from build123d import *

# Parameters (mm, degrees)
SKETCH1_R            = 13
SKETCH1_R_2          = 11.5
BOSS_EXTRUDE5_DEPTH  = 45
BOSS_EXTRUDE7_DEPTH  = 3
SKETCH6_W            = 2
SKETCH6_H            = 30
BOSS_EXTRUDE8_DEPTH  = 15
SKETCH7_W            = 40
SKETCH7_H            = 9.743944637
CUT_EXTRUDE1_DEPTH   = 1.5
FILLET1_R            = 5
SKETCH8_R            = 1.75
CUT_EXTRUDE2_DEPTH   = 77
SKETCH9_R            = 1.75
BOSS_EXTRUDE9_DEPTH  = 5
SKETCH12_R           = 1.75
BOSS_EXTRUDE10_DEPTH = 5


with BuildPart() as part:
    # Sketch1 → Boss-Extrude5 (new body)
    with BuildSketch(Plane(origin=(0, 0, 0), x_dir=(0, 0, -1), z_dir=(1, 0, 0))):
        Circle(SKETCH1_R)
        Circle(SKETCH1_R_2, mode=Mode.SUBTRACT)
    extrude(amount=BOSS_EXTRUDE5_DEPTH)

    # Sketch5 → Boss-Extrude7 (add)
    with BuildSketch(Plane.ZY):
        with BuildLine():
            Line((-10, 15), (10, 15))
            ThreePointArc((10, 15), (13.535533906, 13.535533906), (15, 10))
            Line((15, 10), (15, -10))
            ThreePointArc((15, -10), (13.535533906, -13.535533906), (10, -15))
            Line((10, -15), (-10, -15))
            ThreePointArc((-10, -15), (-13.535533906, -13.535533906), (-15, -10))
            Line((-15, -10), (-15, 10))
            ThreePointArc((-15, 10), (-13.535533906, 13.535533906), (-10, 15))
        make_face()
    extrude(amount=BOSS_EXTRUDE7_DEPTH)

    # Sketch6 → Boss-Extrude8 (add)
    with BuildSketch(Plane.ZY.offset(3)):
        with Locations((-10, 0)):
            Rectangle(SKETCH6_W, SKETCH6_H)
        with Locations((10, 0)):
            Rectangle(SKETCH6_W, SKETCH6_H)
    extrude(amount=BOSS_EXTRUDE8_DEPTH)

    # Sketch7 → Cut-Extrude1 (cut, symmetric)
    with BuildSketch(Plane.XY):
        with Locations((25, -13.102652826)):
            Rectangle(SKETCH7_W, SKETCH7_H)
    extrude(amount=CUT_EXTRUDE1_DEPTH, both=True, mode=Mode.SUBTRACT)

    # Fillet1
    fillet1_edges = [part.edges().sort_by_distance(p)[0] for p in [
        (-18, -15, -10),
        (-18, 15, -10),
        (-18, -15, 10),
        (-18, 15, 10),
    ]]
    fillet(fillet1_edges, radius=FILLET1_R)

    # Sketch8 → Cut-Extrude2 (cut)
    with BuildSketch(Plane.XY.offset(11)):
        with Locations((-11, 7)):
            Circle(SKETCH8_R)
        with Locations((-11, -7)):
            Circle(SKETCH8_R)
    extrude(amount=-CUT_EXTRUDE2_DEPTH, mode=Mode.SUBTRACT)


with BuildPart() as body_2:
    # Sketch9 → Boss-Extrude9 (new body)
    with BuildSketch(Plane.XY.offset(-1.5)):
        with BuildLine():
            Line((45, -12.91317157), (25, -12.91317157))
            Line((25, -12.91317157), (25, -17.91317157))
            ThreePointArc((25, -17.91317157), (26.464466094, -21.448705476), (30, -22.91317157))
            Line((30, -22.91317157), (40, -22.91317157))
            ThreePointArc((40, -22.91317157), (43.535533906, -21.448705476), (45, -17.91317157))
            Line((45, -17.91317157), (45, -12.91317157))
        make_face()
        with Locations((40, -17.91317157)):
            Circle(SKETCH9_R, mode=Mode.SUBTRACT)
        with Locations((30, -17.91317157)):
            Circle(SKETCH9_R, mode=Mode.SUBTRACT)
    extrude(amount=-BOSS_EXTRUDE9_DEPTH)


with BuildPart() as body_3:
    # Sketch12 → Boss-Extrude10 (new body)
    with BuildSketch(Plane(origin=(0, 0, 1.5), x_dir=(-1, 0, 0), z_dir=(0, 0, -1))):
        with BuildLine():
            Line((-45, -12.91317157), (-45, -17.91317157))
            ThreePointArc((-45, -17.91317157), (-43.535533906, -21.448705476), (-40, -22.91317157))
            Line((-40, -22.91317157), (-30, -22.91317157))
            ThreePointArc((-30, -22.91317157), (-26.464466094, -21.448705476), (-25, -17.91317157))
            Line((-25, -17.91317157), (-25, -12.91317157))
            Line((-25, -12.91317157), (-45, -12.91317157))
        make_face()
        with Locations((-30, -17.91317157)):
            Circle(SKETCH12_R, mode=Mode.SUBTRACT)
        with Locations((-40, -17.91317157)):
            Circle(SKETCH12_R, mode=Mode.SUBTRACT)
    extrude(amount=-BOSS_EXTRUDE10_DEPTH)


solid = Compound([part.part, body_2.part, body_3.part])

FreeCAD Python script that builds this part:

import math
import FreeCAD as App
import Part
import Sketcher
from FreeCAD import Vector


def edges_at(feature, points):
    """Names of the edges that pass closest to the given points."""
    edges = feature.Shape.Edges
    near = lambda p: min(range(len(edges)), key=lambda i: edges[i].distToShape(Part.Vertex(*p))[0])
    return sorted({f"Edge{near(p) + 1}" for p in points})


def add_polygon(sketch, points):
    """Adds a closed chain of lines whose ends are joined by coincident constraints."""
    first, n = sketch.GeometryCount, len(points)
    for a, b in zip(points, points[1:] + points[:1]):
        sketch.addGeometry(Part.LineSegment(App.Vector(*a, 0), App.Vector(*b, 0)), False)
    for i in range(n):
        sketch.addConstraint(Sketcher.Constraint("Coincident", first + i, 2, first + (i + 1) % n, 1))

doc = App.newDocument("Part")
params = doc.addObject("Spreadsheet::Sheet", "Params")
for row, (alias, value) in enumerate([
    ("sketch1_diameter", "26 mm"),
    ("sketch1_diameter2", "23 mm"),
    ("pad1_length", "45 mm"),
    ("sketch2_radius", "5 mm"),
    ("sketch2_width", "20 mm"),
    ("pad2_length", "3 mm"),
    ("sketch3_width", "30 mm"),
    ("sketch3_height", "2 mm"),
    ("pad3_length", "15 mm"),
    ("sketch4_width", "40 mm"),
    ("pocket1_length", "3 mm"),
    ("fillet_radius", "5 mm"),
    ("sketch5_diameter", "3.5 mm"),
    ("pocket2_length", "77 mm"),
    ("sketch6_radius", "5 mm"),
    ("sketch6_diameter", "3.5 mm"),
    ("sketch6_width", "20 mm"),
    ("sketch6_height", "5 mm"),
    ("pad4_length", "5 mm"),
    ("sketch7_radius", "5 mm"),
    ("sketch7_diameter", "3.5 mm"),
    ("sketch7_width", "10 mm"),
    ("sketch7_height", "5 mm"),
    ("pad5_length", "5 mm"),
], start=1):
    params.set(f"A{row}", alias)
    params.set(f"B{row}", "=" + value)
    params.setAlias(f"B{row}", alias)

body = doc.addObject("PartDesign::Body", "Body")

sketch1 = body.newObject("Sketcher::SketchObject", "Sketch")
sketch1.AttachmentSupport = (doc.getObject("YZ_Plane"), [""])
sketch1.MapMode = "FlatFace"
sketch1.addGeometry([
    Part.Circle(Vector(0, 0, 0), Vector(0, 0, 1), 13),
    Part.Circle(Vector(0, 0, 0), Vector(0, 0, 1), 12),
], False)
sketch1.addConstraint([
    Sketcher.Constraint("Coincident", 0, 3, -1, 1),
    Sketcher.Constraint("Coincident", 1, 3, -1, 1),
    Sketcher.Constraint("Diameter", 0, 26.0),
    Sketcher.Constraint("Diameter", 1, 23.0),
])
sketch1.setExpression("Constraints[2]", "Params.sketch1_diameter")
sketch1.setExpression("Constraints[3]", "Params.sketch1_diameter2")
pad1 = body.newObject("PartDesign::Pad", "Pad")
pad1.Profile = sketch1
pad1.setExpression("Length", "Params.pad1_length")

sketch2 = body.newObject("Sketcher::SketchObject", "Sketch001")
sketch2.AttachmentSupport = (doc.getObject("YZ_Plane"), [""])
sketch2.MapMode = "FlatFace"
sketch2.addGeometry([
    Part.LineSegment(Vector(15, 10, 0), Vector(15, -10, 0)),
    Part.ArcOfCircle(Part.Circle(Vector(10, -10, 0), Vector(0, 0, 1), 5), math.radians(-90), math.radians(0)),
    Part.LineSegment(Vector(10, -15, 0), Vector(-10, -15, 0)),
    Part.ArcOfCircle(Part.Circle(Vector(-10, -10, 0), Vector(0, 0, 1), 5), math.radians(180), math.radians(270)),
    Part.LineSegment(Vector(-15, -10, 0), Vector(-15, 10, 0)),
    Part.ArcOfCircle(Part.Circle(Vector(-10, 10, 0), Vector(0, 0, 1), 5), math.radians(90), math.radians(180)),
    Part.LineSegment(Vector(-10, 15, 0), Vector(10, 15, 0)),
    Part.ArcOfCircle(Part.Circle(Vector(10, 10, 0), Vector(0, 0, 1), 5), math.radians(0), math.radians(90)),
], False)
sketch2.addConstraint([
    Sketcher.Constraint("Tangent", 0, 2, 1, 2),
    Sketcher.Constraint("Tangent", 1, 1, 2, 1),
    Sketcher.Constraint("Tangent", 2, 2, 3, 2),
    Sketcher.Constraint("Tangent", 3, 1, 4, 1),
    Sketcher.Constraint("Tangent", 4, 2, 5, 2),
    Sketcher.Constraint("Tangent", 5, 1, 6, 1),
    Sketcher.Constraint("Tangent", 6, 2, 7, 2),
    Sketcher.Constraint("Tangent", 7, 1, 0, 1),
    Sketcher.Constraint("Vertical", 0),
    Sketcher.Constraint("Horizontal", 2),
    Sketcher.Constraint("Vertical", 4),
    Sketcher.Constraint("Horizontal", 6),
    Sketcher.Constraint("Equal", 1, 3),
    Sketcher.Constraint("Equal", 3, 5),
    Sketcher.Constraint("Equal", 5, 7),
    Sketcher.Constraint("Symmetric", 1, 3, 5, 3, -1, 1),
    Sketcher.Constraint("Equal", 6, 0),
    Sketcher.Constraint("Radius", 1, 5.0),
    Sketcher.Constraint("DistanceX", 2, 2, 2, 1, 20.0),
])
sketch2.setExpression("Constraints[17]", "Params.sketch2_radius")
sketch2.setExpression("Constraints[18]", "Params.sketch2_width")
pad2 = body.newObject("PartDesign::Pad", "Pad001")
pad2.Profile = sketch2
pad2.setExpression("Length", "Params.pad2_length")
pad2.Reversed = True

sketch3 = body.newObject("Sketcher::SketchObject", "Sketch002")
sketch3.AttachmentSupport = (doc.getObject("YZ_Plane"), [""])
sketch3.MapMode = "FlatFace"
sketch3.AttachmentOffset = App.Placement(Vector(0, 0, -3), App.Rotation())
add_polygon(sketch3, [(15, -11), (-15, -11), (-15, -9), (15, -9)])
add_polygon(sketch3, [(15, 9), (-15, 9), (-15, 11), (15, 11)])
sketch3.addConstraint([
    Sketcher.Constraint("Horizontal", 0),
    Sketcher.Constraint("Vertical", 1),
    Sketcher.Constraint("Horizontal", 2),
    Sketcher.Constraint("Vertical", 3),
    Sketcher.Constraint("Horizontal", 4),
    Sketcher.Constraint("Vertical", 5),
    Sketcher.Constraint("Horizontal", 6),
    Sketcher.Constraint("Vertical", 7),
    Sketcher.Constraint("Symmetric", 2, 2, 4, 2, -1, 1),
    Sketcher.Constraint("Symmetric", 0, 2, 6, 2, -1, 1),
    Sketcher.Constraint("Vertical", 1, 2, 4, 2),
    Sketcher.Constraint("DistanceX", 0, 2, 0, 1, 30.0),
    Sketcher.Constraint("DistanceY", 1, 1, 1, 2, 2.0),
    Sketcher.Constraint("DistanceY", 0, 2, -1, 1, 11.0),
])
sketch3.setExpression("Constraints[19]", "Params.sketch3_width")
sketch3.setExpression("Constraints[20]", "Params.sketch3_height")
pad3 = body.newObject("PartDesign::Pad", "Pad002")
pad3.Profile = sketch3
pad3.setExpression("Length", "Params.pad3_length")
pad3.Reversed = True

sketch4 = body.newObject("Sketcher::SketchObject", "Sketch003")
sketch4.AttachmentSupport = (doc.getObject("XY_Plane"), [""])
sketch4.MapMode = "FlatFace"
add_polygon(sketch4, [(5, -8), (5, -18), (45, -18), (45, -8)])
sketch4.addConstraint([
    Sketcher.Constraint("Vertical", 0),
    Sketcher.Constraint("Horizontal", 1),
    Sketcher.Constraint("Vertical", 2),
    Sketcher.Constraint("Horizontal", 3),
    Sketcher.Constraint("DistanceX", 1, 1, 1, 2, 40.0),
    Sketcher.Constraint("DistanceX", -1, 1, 0, 2, 5.0),
    Sketcher.Constraint("DistanceY", 0, 2, 0, 1, 9.743945),
    Sketcher.Constraint("DistanceY", 2, 2, -1, 1, 8.230681),
])
sketch4.setExpression("Constraints[8]", "Params.sketch4_width")
pocket1 = body.newObject("PartDesign::Pocket", "Pocket")
pocket1.Profile = sketch4
pocket1.setExpression("Length", "Params.pocket1_length")
pocket1.Midplane = True
doc.recompute()

fillet = body.newObject("PartDesign::Fillet", "Fillet")
fillet.Base = (pocket1, edges_at(pocket1, [
    (-18, -15, -10),
    (-18, 15, -10),
    (-18, -15, 10),
    (-18, 15, 10),
]))
fillet.setExpression("Radius", "Params.fillet_radius")

sketch5 = body.newObject("Sketcher::SketchObject", "Sketch004")
sketch5.AttachmentSupport = (doc.getObject("XY_Plane"), [""])
sketch5.MapMode = "FlatFace"
sketch5.AttachmentOffset = App.Placement(Vector(0, 0, 11), App.Rotation())
sketch5.addGeometry([
    Part.Circle(Vector(-11, 7, 0), Vector(0, 0, 1), 1.8),
    Part.Circle(Vector(-11, -7, 0), Vector(0, 0, 1), 1.8),
], False)
sketch5.addConstraint([
    Sketcher.Constraint("Equal", 0, 1),
    Sketcher.Constraint("Symmetric", 0, 3, 1, 3, -1),
    Sketcher.Constraint("Diameter", 0, 3.5),
    Sketcher.Constraint("DistanceX", 0, 3, -1, 1, 11.0),
    Sketcher.Constraint("DistanceY", -1, 1, 0, 3, 7.0),
])
sketch5.setExpression("Constraints[2]", "Params.sketch5_diameter")
pocket2 = body.newObject("PartDesign::Pocket", "Pocket001")
pocket2.Profile = sketch5
pocket2.setExpression("Length", "Params.pocket2_length")
body2 = doc.addObject("PartDesign::Body", "Body001")

sketch6 = body2.newObject("Sketcher::SketchObject", "Sketch005")
sketch6.AttachmentSupport = (doc.getObject("XY_Plane001"), [""])
sketch6.MapMode = "FlatFace"
sketch6.AttachmentOffset = App.Placement(Vector(0, 0, -1.5), App.Rotation())
sketch6.addGeometry([
    Part.LineSegment(Vector(45, -12.9, 0), Vector(25, -12.9, 0)),
    Part.LineSegment(Vector(25, -12.9, 0), Vector(25, -17.9, 0)),
    Part.ArcOfCircle(Part.Circle(Vector(30, -17.9, 0), Vector(0, 0, 1), 5), math.radians(180), math.radians(270)),
    Part.LineSegment(Vector(30, -22.9, 0), Vector(40, -22.9, 0)),
    Part.ArcOfCircle(Part.Circle(Vector(40, -17.9, 0), Vector(0, 0, 1), 5), math.radians(-90), math.radians(0)),
    Part.LineSegment(Vector(45, -17.9, 0), Vector(45, -12.9, 0)),
    Part.Circle(Vector(30, -17.9, 0), Vector(0, 0, 1), 1.8),
    Part.Circle(Vector(40, -17.9, 0), Vector(0, 0, 1), 1.8),
], False)
sketch6.addConstraint([
    Sketcher.Constraint("Coincident", 0, 2, 1, 1),
    Sketcher.Constraint("Tangent", 1, 2, 2, 1),
    Sketcher.Constraint("Tangent", 2, 2, 3, 1),
    Sketcher.Constraint("Tangent", 3, 2, 4, 1),
    Sketcher.Constraint("Tangent", 4, 2, 5, 1),
    Sketcher.Constraint("Coincident", 5, 2, 0, 1),
    Sketcher.Constraint("Horizontal", 0),
    Sketcher.Constraint("Vertical", 1),
    Sketcher.Constraint("Horizontal", 3),
    Sketcher.Constraint("Vertical", 5),
    Sketcher.Constraint("Coincident", 6, 3, 2, 3),
    Sketcher.Constraint("Coincident", 7, 3, 4, 3),
    Sketcher.Constraint("Equal", 2, 4),
    Sketcher.Constraint("Equal", 6, 7),
    Sketcher.Constraint("Radius", 2, 5.0),
    Sketcher.Constraint("Diameter", 6, 3.5),
    Sketcher.Constraint("DistanceX", 0, 2, 0, 1, 20.0),
    Sketcher.Constraint("DistanceY", 1, 2, 1, 1, 5.0),
    Sketcher.Constraint("DistanceX", -1, 1, 2, 3, 30.0),
    Sketcher.Constraint("DistanceY", 2, 3, -1, 1, 17.913172),
])
sketch6.setExpression("Constraints[14]", "Params.sketch6_radius")
sketch6.setExpression("Constraints[15]", "Params.sketch6_diameter")
sketch6.setExpression("Constraints[16]", "Params.sketch6_width")
sketch6.setExpression("Constraints[17]", "Params.sketch6_height")
pad4 = body2.newObject("PartDesign::Pad", "Pad003")
pad4.Profile = sketch6
pad4.setExpression("Length", "Params.pad4_length")
pad4.Reversed = True
body3 = doc.addObject("PartDesign::Body", "Body002")

sketch7 = body3.newObject("Sketcher::SketchObject", "Sketch006")
sketch7.AttachmentSupport = (doc.getObject("XY_Plane002"), [""])
sketch7.MapMode = "FlatFace"
sketch7.AttachmentOffset = App.Placement(Vector(0, 0, 1.5), App.Rotation())
sketch7.addGeometry([
    Part.LineSegment(Vector(45, -12.9, 0), Vector(45, -17.9, 0)),
    Part.ArcOfCircle(Part.Circle(Vector(40, -17.9, 0), Vector(0, 0, 1), 5), math.radians(-90), math.radians(0)),
    Part.LineSegment(Vector(40, -22.9, 0), Vector(30, -22.9, 0)),
    Part.ArcOfCircle(Part.Circle(Vector(30, -17.9, 0), Vector(0, 0, 1), 5), math.radians(180), math.radians(270)),
    Part.LineSegment(Vector(25, -17.9, 0), Vector(25, -12.9, 0)),
    Part.LineSegment(Vector(25, -12.9, 0), Vector(45, -12.9, 0)),
    Part.Circle(Vector(40, -17.9, 0), Vector(0, 0, 1), 1.8),
    Part.Circle(Vector(30, -17.9, 0), Vector(0, 0, 1), 1.8),
], False)
sketch7.addConstraint([
    Sketcher.Constraint("Tangent", 0, 2, 1, 2),
    Sketcher.Constraint("Tangent", 1, 1, 2, 1),
    Sketcher.Constraint("Tangent", 2, 2, 3, 2),
    Sketcher.Constraint("Tangent", 3, 1, 4, 1),
    Sketcher.Constraint("Coincident", 4, 2, 5, 1),
    Sketcher.Constraint("Coincident", 5, 2, 0, 1),
    Sketcher.Constraint("Vertical", 0),
    Sketcher.Constraint("Horizontal", 2),
    Sketcher.Constraint("Vertical", 4),
    Sketcher.Constraint("Horizontal", 5),
    Sketcher.Constraint("Coincident", 6, 3, 1, 3),
    Sketcher.Constraint("Coincident", 7, 3, 3, 3),
    Sketcher.Constraint("Equal", 1, 3),
    Sketcher.Constraint("Equal", 6, 7),
    Sketcher.Constraint("Radius", 1, 5.0),
    Sketcher.Constraint("Diameter", 6, 3.5),
    Sketcher.Constraint("DistanceX", 2, 2, 2, 1, 10.0),
    Sketcher.Constraint("DistanceY", 0, 2, 0, 1, 5.0),
    Sketcher.Constraint("DistanceX", -1, 1, 1, 3, 40.0),
    Sketcher.Constraint("DistanceY", 1, 3, -1, 1, 17.913172),
])
sketch7.setExpression("Constraints[14]", "Params.sketch7_radius")
sketch7.setExpression("Constraints[15]", "Params.sketch7_diameter")
sketch7.setExpression("Constraints[16]", "Params.sketch7_width")
sketch7.setExpression("Constraints[17]", "Params.sketch7_height")
pad5 = body3.newObject("PartDesign::Pad", "Pad004")
pad5.Profile = sketch7
pad5.setExpression("Length", "Params.pad5_length")

doc.recompute()
